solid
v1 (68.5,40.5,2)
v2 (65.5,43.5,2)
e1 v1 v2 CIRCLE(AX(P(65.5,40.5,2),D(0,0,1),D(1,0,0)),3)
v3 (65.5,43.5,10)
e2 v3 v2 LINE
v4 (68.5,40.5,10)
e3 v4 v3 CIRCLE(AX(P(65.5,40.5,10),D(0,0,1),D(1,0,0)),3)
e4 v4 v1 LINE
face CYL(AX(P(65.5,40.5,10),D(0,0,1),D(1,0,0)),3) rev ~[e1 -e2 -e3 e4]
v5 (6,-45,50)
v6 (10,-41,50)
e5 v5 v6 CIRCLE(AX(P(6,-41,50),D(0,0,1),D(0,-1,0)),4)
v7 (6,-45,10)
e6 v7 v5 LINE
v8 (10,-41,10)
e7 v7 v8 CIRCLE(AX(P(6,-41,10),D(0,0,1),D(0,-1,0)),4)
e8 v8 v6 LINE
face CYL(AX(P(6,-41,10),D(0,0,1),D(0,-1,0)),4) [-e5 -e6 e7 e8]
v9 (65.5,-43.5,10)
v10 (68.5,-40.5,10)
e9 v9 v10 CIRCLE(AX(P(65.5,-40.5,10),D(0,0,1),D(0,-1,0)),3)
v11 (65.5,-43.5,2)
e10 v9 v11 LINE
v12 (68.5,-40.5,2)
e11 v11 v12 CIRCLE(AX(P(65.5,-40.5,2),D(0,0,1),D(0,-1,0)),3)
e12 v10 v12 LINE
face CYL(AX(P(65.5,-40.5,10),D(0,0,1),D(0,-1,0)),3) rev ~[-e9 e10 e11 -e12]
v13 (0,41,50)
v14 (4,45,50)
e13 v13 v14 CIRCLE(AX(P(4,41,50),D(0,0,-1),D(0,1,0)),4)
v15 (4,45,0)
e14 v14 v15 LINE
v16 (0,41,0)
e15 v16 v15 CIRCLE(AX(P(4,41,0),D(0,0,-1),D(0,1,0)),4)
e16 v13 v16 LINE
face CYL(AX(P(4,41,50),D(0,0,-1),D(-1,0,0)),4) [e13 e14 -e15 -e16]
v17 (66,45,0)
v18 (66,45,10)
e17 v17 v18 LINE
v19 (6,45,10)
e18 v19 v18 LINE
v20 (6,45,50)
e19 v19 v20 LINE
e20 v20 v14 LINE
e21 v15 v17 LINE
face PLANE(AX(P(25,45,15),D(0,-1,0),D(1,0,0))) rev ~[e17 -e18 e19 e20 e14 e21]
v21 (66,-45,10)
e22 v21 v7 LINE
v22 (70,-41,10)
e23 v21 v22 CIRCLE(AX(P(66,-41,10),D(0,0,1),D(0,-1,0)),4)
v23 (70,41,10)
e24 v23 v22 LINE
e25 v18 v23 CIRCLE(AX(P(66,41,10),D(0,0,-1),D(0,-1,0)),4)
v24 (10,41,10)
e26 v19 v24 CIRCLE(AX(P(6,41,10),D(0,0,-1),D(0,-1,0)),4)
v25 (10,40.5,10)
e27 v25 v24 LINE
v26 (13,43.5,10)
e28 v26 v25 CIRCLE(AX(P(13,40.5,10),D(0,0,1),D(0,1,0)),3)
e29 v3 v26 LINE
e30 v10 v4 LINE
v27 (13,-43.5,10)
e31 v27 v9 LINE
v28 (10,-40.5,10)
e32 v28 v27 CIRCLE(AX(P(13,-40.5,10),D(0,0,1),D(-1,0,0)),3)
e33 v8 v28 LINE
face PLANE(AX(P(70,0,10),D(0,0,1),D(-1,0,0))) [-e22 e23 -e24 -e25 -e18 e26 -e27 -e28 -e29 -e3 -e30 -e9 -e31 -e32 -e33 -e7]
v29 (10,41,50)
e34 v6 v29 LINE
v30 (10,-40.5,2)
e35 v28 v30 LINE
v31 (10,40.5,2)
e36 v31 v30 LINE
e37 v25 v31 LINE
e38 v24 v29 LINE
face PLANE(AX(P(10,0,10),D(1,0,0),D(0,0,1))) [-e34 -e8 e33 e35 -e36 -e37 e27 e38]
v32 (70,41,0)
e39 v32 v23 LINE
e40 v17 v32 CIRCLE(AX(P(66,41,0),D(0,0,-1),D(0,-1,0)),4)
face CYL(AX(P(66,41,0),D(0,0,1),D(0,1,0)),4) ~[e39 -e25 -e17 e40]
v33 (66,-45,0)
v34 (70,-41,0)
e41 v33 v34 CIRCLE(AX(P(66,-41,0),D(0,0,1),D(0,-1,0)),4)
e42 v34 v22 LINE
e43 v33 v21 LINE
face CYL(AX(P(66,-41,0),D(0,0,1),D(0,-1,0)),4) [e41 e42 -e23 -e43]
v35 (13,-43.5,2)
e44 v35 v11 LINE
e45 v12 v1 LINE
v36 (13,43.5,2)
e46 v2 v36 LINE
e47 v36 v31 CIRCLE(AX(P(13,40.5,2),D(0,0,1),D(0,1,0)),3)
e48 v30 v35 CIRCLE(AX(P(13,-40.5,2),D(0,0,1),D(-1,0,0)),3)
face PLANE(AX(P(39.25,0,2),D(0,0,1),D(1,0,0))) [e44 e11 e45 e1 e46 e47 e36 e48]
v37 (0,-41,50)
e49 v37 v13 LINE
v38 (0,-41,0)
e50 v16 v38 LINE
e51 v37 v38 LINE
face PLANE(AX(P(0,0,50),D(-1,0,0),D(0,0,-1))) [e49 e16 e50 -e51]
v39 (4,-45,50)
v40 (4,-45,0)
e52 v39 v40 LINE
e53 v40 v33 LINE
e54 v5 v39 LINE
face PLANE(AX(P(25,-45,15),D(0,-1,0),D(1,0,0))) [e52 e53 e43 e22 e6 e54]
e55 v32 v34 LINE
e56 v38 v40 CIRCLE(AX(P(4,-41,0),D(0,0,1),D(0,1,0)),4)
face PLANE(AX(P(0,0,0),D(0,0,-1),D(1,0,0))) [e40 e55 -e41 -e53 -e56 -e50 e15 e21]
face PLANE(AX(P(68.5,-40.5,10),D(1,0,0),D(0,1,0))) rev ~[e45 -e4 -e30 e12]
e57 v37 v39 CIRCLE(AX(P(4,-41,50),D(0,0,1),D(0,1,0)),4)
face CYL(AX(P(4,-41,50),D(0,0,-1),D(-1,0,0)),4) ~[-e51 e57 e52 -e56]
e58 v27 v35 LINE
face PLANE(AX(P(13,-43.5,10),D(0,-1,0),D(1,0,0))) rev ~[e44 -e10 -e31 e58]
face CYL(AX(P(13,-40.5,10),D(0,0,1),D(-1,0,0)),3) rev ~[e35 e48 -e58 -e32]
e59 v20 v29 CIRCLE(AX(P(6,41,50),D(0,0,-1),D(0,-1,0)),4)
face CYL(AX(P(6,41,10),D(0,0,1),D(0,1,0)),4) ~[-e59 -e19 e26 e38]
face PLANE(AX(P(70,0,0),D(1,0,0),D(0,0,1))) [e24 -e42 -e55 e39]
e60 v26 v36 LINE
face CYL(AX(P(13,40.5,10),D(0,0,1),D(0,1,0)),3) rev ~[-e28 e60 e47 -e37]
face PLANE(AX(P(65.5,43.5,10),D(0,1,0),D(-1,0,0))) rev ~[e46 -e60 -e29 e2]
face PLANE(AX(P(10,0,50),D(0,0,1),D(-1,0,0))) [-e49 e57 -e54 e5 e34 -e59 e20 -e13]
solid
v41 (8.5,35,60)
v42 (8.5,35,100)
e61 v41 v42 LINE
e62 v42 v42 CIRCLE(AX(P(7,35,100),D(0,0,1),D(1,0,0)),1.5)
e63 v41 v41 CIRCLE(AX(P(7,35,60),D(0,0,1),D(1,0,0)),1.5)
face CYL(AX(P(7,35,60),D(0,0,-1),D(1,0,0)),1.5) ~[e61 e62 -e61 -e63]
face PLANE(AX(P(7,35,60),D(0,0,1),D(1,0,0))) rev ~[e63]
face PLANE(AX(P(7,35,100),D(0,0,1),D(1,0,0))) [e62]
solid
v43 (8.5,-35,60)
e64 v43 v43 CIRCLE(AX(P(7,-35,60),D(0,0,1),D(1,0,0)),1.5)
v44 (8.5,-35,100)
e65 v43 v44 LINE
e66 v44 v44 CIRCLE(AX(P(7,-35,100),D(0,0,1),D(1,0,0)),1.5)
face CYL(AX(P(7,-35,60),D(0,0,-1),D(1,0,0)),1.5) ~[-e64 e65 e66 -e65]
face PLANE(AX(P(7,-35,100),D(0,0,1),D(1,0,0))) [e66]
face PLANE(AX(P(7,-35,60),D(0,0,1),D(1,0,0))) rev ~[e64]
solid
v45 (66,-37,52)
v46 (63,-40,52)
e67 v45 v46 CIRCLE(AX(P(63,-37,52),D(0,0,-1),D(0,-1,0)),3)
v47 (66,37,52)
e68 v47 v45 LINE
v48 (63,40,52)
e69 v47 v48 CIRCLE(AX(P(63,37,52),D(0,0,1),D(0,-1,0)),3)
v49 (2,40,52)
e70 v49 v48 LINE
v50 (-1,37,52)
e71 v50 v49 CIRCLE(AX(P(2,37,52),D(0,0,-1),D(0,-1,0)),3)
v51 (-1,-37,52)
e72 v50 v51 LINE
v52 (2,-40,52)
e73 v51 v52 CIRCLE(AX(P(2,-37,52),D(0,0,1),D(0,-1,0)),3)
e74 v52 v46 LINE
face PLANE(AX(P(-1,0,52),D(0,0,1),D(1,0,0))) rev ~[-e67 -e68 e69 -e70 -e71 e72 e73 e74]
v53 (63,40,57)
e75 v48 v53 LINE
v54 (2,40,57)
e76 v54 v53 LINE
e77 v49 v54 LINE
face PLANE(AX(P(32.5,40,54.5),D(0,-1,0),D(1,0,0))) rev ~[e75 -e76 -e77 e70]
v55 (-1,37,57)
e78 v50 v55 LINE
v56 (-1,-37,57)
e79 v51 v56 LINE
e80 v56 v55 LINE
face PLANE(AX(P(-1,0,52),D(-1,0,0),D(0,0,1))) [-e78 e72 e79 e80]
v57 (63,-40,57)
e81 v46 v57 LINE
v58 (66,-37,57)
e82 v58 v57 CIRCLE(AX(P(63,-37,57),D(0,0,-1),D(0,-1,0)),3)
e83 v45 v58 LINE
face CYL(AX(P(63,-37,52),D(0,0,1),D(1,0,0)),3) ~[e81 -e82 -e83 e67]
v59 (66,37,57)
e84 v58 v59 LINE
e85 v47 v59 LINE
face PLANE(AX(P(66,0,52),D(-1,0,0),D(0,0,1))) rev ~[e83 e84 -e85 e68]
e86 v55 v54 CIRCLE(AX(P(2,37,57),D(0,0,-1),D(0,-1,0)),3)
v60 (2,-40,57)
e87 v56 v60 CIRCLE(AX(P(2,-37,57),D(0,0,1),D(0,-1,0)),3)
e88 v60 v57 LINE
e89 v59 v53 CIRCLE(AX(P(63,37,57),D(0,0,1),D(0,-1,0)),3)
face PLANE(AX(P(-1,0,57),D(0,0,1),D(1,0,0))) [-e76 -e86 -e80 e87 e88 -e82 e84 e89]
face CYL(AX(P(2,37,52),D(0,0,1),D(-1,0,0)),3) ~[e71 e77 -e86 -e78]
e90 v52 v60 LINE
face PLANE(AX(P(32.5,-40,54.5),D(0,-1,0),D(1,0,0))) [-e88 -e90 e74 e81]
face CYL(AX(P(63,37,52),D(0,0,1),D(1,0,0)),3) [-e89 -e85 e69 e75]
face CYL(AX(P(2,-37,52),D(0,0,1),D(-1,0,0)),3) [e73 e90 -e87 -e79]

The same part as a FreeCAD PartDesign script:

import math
import FreeCAD as App
import Part
import Sketcher
from FreeCAD import Vector
Q = App.Units.Quantity


def edges_at(feature, points):
    """Names of the edges that pass closest to the given points."""
    edges = feature.Shape.Edges
    near = lambda p: min(range(len(edges)), key=lambda i: edges[i].distToShape(Part.Vertex(*p))[0])
    return sorted({f"Edge{near(p) + 1}" for p in points})

doc = App.newDocument("Part")
body = doc.addObject("PartDesign::Body", "Body")

sketch1 = body.newObject("Sketcher::SketchObject", "Sketch")
sketch1.AttachmentSupport = (doc.getObject("XZ_Plane"), [""])
sketch1.MapMode = "FlatFace"
sketch1.addGeometry(Part.LineSegment(Vector(0, 50, 0), Vector(0, 0, 0)), False)
sketch1.addGeometry(Part.LineSegment(Vector(0, 0, 0), Vector(70, 0, 0)), False)
sketch1.addGeometry(Part.LineSegment(Vector(70, 0, 0), Vector(70, 10, 0)), False)
sketch1.addGeometry(Part.LineSegment(Vector(70, 10, 0), Vector(10, 10, 0)), False)
sketch1.addGeometry(Part.LineSegment(Vector(10, 10, 0), Vector(10, 50, 0)), False)
sketch1.addGeometry(Part.LineSegment(Vector(10, 50, 0), Vector(0, 50, 0)), False)
sketch1.addConstraint(Sketcher.Constraint("Coincident", 0, 2, 1, 1))
sketch1.addConstraint(Sketcher.Constraint("Coincident", 1, 2, 2, 1))
sketch1.addConstraint(Sketcher.Constraint("Coincident", 2, 2, 3, 1))
sketch1.addConstraint(Sketcher.Constraint("Coincident", 3, 2, 4, 1))
sketch1.addConstraint(Sketcher.Constraint("Coincident", 4, 2, 5, 1))
sketch1.addConstraint(Sketcher.Constraint("Coincident", 5, 2, 0, 1))
sketch1.addConstraint(Sketcher.Constraint("Vertical", 0))
sketch1.addConstraint(Sketcher.Constraint("Horizontal", 1))
sketch1.addConstraint(Sketcher.Constraint("Vertical", 2))
sketch1.addConstraint(Sketcher.Constraint("Horizontal", 3))
sketch1.addConstraint(Sketcher.Constraint("Vertical", 4))
sketch1.addConstraint(Sketcher.Constraint("Horizontal", 5))
sketch1.addConstraint(Sketcher.Constraint("Coincident", 0, 2, -1, 1))
sketch1.addConstraint(Sketcher.Constraint("Equal", 5, 2))
sketch1.addConstraint(Sketcher.Constraint("DistanceX", 1, 1, 1, 2, Q("70 mm")))
sketch1.addConstraint(Sketcher.Constraint("DistanceX", 3, 2, 3, 1, Q("60 mm")))
sketch1.addConstraint(Sketcher.Constraint("DistanceY", 0, 2, 0, 1, Q("50 mm")))
pad1 = body.newObject("PartDesign::Pad", "Pad")
pad1.Profile = sketch1
pad1.Type = "TwoLengths"
pad1.Length = 45
pad1.Length2 = 45

sketch2 = body.newObject("Sketcher::SketchObject", "Sketch001")
sketch2.AttachmentSupport = (doc.getObject("XY_Plane"), [""])
sketch2.MapMode = "FlatFace"
sketch2.AttachmentOffset = App.Placement(Vector(0, 0, 10), App.Rotation())
sketch2.addGeometry(Part.ArcOfCircle(Part.Circle(Vector(65.5, 40.5, 0), Vector(0, 0, 1), 3), math.radians(0), math.radians(90)), False)
sketch2.addGeometry(Part.LineSegment(Vector(65.5, 43.5, 0), Vector(13, 43.5, 0)), False)
sketch2.addGeometry(Part.ArcOfCircle(Part.Circle(Vector(13, 40.5, 0), Vector(0, 0, 1), 3), math.radians(90), math.radians(180)), False)
sketch2.addGeometry(Part.LineSegment(Vector(10, 40.5, 0), Vector(10, -40.5, 0)), False)
sketch2.addGeometry(Part.ArcOfCircle(Part.Circle(Vector(13, -40.5, 0), Vector(0, 0, 1), 3), math.radians(180), math.radians(270)), False)
sketch2.addGeometry(Part.LineSegment(Vector(13, -43.5, 0), Vector(65.5, -43.5, 0)), False)
sketch2.addGeometry(Part.ArcOfCircle(Part.Circle(Vector(65.5, -40.5, 0), Vector(0, 0, 1), 3), math.radians(-90), math.radians(0)), False)
sketch2.addGeometry(Part.LineSegment(Vector(68.5, -40.5, 0), Vector(68.5, 40.5, 0)), False)
sketch2.addConstraint(Sketcher.Constraint("Tangent", 0, 2, 1, 1))
sketch2.addConstraint(Sketcher.Constraint("Tangent", 1, 2, 2, 1))
sketch2.addConstraint(Sketcher.Constraint("Tangent", 2, 2, 3, 1))
sketch2.addConstraint(Sketcher.Constraint("Tangent", 3, 2, 4, 1))
sketch2.addConstraint(Sketcher.Constraint("Tangent", 4, 2, 5, 1))
sketch2.addConstraint(Sketcher.Constraint("Tangent", 5, 2, 6, 1))
sketch2.addConstraint(Sketcher.Constraint("Tangent", 6, 2, 7, 1))
sketch2.addConstraint(Sketcher.Constraint("Tangent", 7, 2, 0, 1))
sketch2.addConstraint(Sketcher.Constraint("Horizontal", 1))
sketch2.addConstraint(Sketcher.Constraint("Vertical", 3))
sketch2.addConstraint(Sketcher.Constraint("Horizontal", 5))
sketch2.addConstraint(Sketcher.Constraint("Vertical", 7))
sketch2.addConstraint(Sketcher.Constraint("Equal", 0, 2))
sketch2.addConstraint(Sketcher.Constraint("Equal", 2, 4))
sketch2.addConstraint(Sketcher.Constraint("Equal", 4, 6))
sketch2.addConstraint(Sketcher.Constraint("Radius", 0, Q("3 mm")))
sketch2.addConstraint(Sketcher.Constraint("DistanceY", 3, 2, 3, 1, Q("81 mm")))
sketch2.addConstraint(Sketcher.Constraint("DistanceX", 1, 2, 1, 1, Q("52.5 mm")))
sketch2.addConstraint(Sketcher.Constraint("DistanceX", -1, 1, 2, 3, Q("13 mm")))
sketch2.addConstraint(Sketcher.Constraint("DistanceY", -1, 1, 0, 3, Q("40.5 mm")))
pocket1 = body.newObject("PartDesign::Pocket", "Pocket")
pocket1.Profile = sketch2
pocket1.Length = 8
doc.recompute()

fillet = body.newObject("PartDesign::Fillet", "Fillet")
fillet.Base = (pocket1, edges_at(pocket1, [
    (70, -45, 5),
    (70, 45, 5),
    (0, -45, 25),
    (0, 45, 25),
    (10, -45, 30),
    (10, 45, 30),
]))
fillet.Radius = 4
body2 = doc.addObject("PartDesign::Body", "Body001")

sketch3 = body2.newObject("Sketcher::SketchObject", "Sketch002")
sketch3.AttachmentSupport = (doc.getObject("XZ_Plane001"), [""])
sketch3.MapMode = "FlatFace"
sketch3.addGeometry(Part.LineSegment(Vector(-1, 57, 0), Vector(-1, 52, 0)), False)
sketch3.addGeometry(Part.LineSegment(Vector(-1, 52, 0), Vector(66, 52, 0)), False)
sketch3.addGeometry(Part.LineSegment(Vector(66, 52, 0), Vector(66, 57, 0)), False)
sketch3.addGeometry(Part.LineSegment(Vector(66, 57, 0), Vector(-1, 57, 0)), False)
sketch3.addConstraint(Sketcher.Constraint("Coincident", 0, 2, 1, 1))
sketch3.addConstraint(Sketcher.Constraint("Coincident", 1, 2, 2, 1))
sketch3.addConstraint(Sketcher.Constraint("Coincident", 2, 2, 3, 1))
sketch3.addConstraint(Sketcher.Constraint("Coincident", 3, 2, 0, 1))
sketch3.addConstraint(Sketcher.Constraint("Vertical", 0))
sketch3.addConstraint(Sketcher.Constraint("Horizontal", 1))
sketch3.addConstraint(Sketcher.Constraint("Vertical", 2))
sketch3.addConstraint(Sketcher.Constraint("Horizontal", 3))
sketch3.addConstraint(Sketcher.Constraint("DistanceX", 1, 1, 1, 2, Q("67 mm")))
sketch3.addConstraint(Sketcher.Constraint("DistanceY", 0, 2, 0, 1, Q("5 mm")))
sketch3.addConstraint(Sketcher.Constraint("DistanceX", 0, 2, -1, 1, Q("1 mm")))
sketch3.addConstraint(Sketcher.Constraint("DistanceY", -1, 1, 0, 2, Q("52 mm")))
pad2 = body2.newObject("PartDesign::Pad", "Pad001")
pad2.Profile = sketch3
pad2.Type = "TwoLengths"
pad2.Length = 40
pad2.Length2 = 40
pad2.Reversed = True
doc.recompute()

fillet2 = body2.newObject("PartDesign::Fillet", "Fillet001")
fillet2.Base = (pad2, edges_at(pad2, [
    (66, -40, 54.5),
    (66, 40, 54.5),
    (-1, 40, 54.5),
    (-1, -40, 54.5),
]))
fillet2.Radius = 3
body3 = doc.addObject("PartDesign::Body", "Body002")

sketch4 = body3.newObject("Sketcher::SketchObject", "Sketch003")
sketch4.AttachmentSupport = (doc.getObject("XY_Plane002"), [""])
sketch4.MapMode = "FlatFace"
sketch4.AttachmentOffset = App.Placement(Vector(0, 0, 60), App.Rotation())
sketch4.addGeometry(Part.Circle(Vector(7, -35, 0), Vector(0, 0, 1), 1.5), False)
sketch4.addConstraint(Sketcher.Constraint("Diameter", 0, Q("3 mm")))
sketch4.addConstraint(Sketcher.Constraint("DistanceX", -1, 1, 0, 3, Q("7 mm")))
sketch4.addConstraint(Sketcher.Constraint("DistanceY", 0, 3, -1, 1, Q("35 mm")))
pad3 = body3.newObject("PartDesign::Pad", "Pad002")
pad3.Profile = sketch4
pad3.Length = 40
body4 = doc.addObject("PartDesign::Body", "Body003")

sketch5 = body4.newObject("Sketcher::SketchObject", "Sketch004")
sketch5.AttachmentSupport = (doc.getObject("XY_Plane003"), [""])
sketch5.MapMode = "FlatFace"
sketch5.AttachmentOffset = App.Placement(Vector(0, 0, 60), App.Rotation())
sketch5.addGeometry(Part.Circle(Vector(7, 35, 0), Vector(0, 0, 1), 1.5), False)
sketch5.addConstraint(Sketcher.Constraint("Diameter", 0, Q("3 mm")))
sketch5.addConstraint(Sketcher.Constraint("DistanceX", -1, 1, 0, 3, Q("7 mm")))
sketch5.addConstraint(Sketcher.Constraint("DistanceY", -1, 1, 0, 3, Q("35 mm")))
pad4 = body4.newObject("PartDesign::Pad", "Pad003")
pad4.Profile = sketch5
pad4.Length = 40

doc.recompute()
